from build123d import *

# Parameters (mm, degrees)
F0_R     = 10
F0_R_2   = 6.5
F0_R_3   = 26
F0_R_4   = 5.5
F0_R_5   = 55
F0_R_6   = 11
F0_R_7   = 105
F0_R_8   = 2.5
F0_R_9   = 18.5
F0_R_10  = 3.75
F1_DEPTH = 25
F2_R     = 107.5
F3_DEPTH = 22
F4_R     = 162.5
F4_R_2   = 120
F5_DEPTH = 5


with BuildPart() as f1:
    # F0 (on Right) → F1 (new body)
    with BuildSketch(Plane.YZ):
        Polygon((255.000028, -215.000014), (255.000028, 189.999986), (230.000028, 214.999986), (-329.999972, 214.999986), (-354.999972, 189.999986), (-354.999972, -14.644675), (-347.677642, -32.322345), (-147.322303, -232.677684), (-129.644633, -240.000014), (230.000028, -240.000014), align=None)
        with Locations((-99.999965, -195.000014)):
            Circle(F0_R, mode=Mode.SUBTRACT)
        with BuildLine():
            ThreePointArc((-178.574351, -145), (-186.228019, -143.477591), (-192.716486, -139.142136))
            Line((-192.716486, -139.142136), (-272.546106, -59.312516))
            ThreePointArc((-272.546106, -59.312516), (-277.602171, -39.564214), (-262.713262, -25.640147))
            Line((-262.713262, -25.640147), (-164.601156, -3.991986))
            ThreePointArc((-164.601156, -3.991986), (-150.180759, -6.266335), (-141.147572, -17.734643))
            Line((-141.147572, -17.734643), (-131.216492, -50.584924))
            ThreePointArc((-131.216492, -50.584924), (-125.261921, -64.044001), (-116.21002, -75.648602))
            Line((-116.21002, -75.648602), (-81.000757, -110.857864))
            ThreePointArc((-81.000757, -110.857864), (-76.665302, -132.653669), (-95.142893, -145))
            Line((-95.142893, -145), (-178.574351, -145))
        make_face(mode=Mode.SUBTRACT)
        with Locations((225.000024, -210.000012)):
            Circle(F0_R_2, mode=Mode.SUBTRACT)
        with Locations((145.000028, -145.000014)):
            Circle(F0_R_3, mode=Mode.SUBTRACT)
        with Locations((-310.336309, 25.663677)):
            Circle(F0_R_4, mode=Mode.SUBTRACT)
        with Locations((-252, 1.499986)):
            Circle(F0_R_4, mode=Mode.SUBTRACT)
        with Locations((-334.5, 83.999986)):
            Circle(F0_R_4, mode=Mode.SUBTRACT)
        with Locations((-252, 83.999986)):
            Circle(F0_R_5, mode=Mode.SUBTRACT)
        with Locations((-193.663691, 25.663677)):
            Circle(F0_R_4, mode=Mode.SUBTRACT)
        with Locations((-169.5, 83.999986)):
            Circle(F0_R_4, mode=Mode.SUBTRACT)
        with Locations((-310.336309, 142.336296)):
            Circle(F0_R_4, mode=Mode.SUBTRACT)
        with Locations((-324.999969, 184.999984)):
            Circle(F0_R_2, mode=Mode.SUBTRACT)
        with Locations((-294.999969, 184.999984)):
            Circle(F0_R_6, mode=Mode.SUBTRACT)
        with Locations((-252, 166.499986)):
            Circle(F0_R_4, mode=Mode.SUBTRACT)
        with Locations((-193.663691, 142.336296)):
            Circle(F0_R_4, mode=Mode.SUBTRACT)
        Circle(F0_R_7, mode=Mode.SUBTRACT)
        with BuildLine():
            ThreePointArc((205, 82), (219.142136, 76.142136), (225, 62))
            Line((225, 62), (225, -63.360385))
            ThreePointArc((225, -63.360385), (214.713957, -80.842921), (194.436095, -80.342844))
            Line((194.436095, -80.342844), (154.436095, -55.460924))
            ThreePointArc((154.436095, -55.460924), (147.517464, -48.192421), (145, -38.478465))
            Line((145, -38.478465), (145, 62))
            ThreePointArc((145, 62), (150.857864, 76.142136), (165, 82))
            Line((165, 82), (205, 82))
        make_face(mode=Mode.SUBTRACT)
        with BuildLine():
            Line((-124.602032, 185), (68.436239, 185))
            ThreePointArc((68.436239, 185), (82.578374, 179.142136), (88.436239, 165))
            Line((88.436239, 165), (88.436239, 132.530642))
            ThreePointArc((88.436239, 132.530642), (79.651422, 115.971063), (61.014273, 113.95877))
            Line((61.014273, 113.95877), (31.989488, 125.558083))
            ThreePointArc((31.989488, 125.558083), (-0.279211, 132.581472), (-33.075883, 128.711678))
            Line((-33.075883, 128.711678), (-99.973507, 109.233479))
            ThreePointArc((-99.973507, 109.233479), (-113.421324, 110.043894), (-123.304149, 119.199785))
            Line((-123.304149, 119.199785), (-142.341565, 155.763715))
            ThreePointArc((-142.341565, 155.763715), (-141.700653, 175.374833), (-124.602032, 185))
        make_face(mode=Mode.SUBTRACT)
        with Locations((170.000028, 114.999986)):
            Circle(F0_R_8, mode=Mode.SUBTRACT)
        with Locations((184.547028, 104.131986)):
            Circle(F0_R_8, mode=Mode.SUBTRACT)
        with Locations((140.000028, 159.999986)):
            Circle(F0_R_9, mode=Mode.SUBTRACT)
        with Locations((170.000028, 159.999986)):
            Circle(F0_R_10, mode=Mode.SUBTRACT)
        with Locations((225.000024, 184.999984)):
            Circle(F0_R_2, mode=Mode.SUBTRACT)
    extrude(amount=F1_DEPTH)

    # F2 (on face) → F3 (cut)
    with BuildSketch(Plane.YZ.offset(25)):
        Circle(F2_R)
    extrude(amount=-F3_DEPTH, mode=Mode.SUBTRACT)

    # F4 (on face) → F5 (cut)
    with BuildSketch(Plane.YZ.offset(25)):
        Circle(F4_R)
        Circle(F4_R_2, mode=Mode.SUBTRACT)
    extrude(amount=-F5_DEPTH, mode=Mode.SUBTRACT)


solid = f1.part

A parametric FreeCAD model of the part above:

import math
import FreeCAD as App
import Part
import Sketcher
Q = App.Units.Quantity

doc = App.newDocument("Part")
body = doc.addObject("PartDesign::Body", "Body")

sketch1 = doc.addObject("Sketcher::SketchObject", "Sketch")
body.addObject(sketch1)
sketch1.AttachmentSupport = (doc.YZ_Plane, [""])
sketch1.MapMode = "FlatFace"
sketch1.addGeometry(Part.LineSegment(App.Vector(255.000028, -215.000014, 0), App.Vector(255.000028, 189.999986, 0)), False)
sketch1.addGeometry(Part.LineSegment(App.Vector(255.000028, 189.999986, 0), App.Vector(230.000028, 214.999986, 0)), False)
sketch1.addGeometry(Part.LineSegment(App.Vector(230.000028, 214.999986, 0), App.Vector(-329.999972, 214.999986, 0)), False)
sketch1.addGeometry(Part.LineSegment(App.Vector(-329.999972, 214.999986, 0), App.Vector(-354.999972, 189.999986, 0)), False)
sketch1.addGeometry(Part.LineSegment(App.Vector(-354.999972, 189.999986, 0), App.Vector(-354.999972, -14.644675, 0)), False)
sketch1.addGeometry(Part.LineSegment(App.Vector(-354.999972, -14.644675, 0), App.Vector(-347.677642, -32.322345, 0)), False)
sketch1.addGeometry(Part.LineSegment(App.Vector(-347.677642, -32.322345, 0), App.Vector(-147.322303, -232.677684, 0)), False)
sketch1.addGeometry(Part.LineSegment(App.Vector(-147.322303, -232.677684, 0), App.Vector(-129.644633, -240.000014, 0)), False)
sketch1.addGeometry(Part.LineSegment(App.Vector(-129.644633, -240.000014, 0), App.Vector(230.000028, -240.000014, 0)), False)
sketch1.addGeometry(Part.LineSegment(App.Vector(230.000028, -240.000014, 0), App.Vector(255.000028, -215.000014, 0)), False)
sketch1.addGeometry(Part.Circle(App.Vector(-99.999965, -195.000014, 0), App.Vector(0, 0, 1), 10), False)
sketch1.addGeometry(Part.LineSegment(App.Vector(-95.142893, -145, 0), App.Vector(-178.574351, -145, 0)), False)
sketch1.addGeometry(Part.ArcOfCircle(Part.Circle(App.Vector(-178.574352, -125.000002, 0), App.Vector(0, 0, 1), 19.999998), math.radians(-135.000001), math.radians(-89.999998)), False)
sketch1.addGeometry(Part.LineSegment(App.Vector(-192.716486, -139.142136, 0), App.Vector(-272.546106, -59.312516, 0)), False)
sketch1.addGeometry(Part.ArcOfCircle(Part.Circle(App.Vector(-258.403971, -45.17038, 0), App.Vector(0, 0, 1), 20), math.radians(102.442784), math.radians(225.000001)), False)
sketch1.addGeometry(Part.LineSegment(App.Vector(-262.713262, -25.640147, 0), App.Vector(-164.601156, -3.991986, 0)), False)
sketch1.addGeometry(Part.ArcOfCircle(Part.Circle(App.Vector(-160.291865, -23.522218, 0), App.Vector(0, 0, 1), 19.999999), math.radians(16.820768), math.radians(102.442784)), False)
sketch1.addGeometry(Part.LineSegment(App.Vector(-141.147572, -17.734643, 0), App.Vector(-131.216492, -50.584924, 0)), False)
sketch1.addGeometry(Part.ArcOfCircle(Part.Circle(App.Vector(-73.783597, -33.222187, 0), App.Vector(0, 0, 1), 60.000017), math.radians(-163.179226), math.radians(-135.000005)), False)
sketch1.addGeometry(Part.LineSegment(App.Vector(-116.21002, -75.648602, 0), App.Vector(-81.000757, -110.857864, 0)), False)
sketch1.addGeometry(Part.ArcOfCircle(Part.Circle(App.Vector(-95.142893, -125, 0), App.Vector(0, 0, 1), 20), math.radians(-90.000001), math.radians(45.000001)), False)
sketch1.addGeometry(Part.Circle(App.Vector(225.000024, -210.000012, 0), App.Vector(0, 0, 1), 6.5), False)
sketch1.addGeometry(Part.Circle(App.Vector(145.000028, -145.000014, 0), App.Vector(0, 0, 1), 26), False)
sketch1.addGeometry(Part.Circle(App.Vector(-310.336309, 25.663677, 0), App.Vector(0, 0, 1), 5.5), False)
sketch1.addGeometry(Part.Circle(App.Vector(-252, 1.499986, 0), App.Vector(0, 0, 1), 5.5), False)
sketch1.addGeometry(Part.Circle(App.Vector(-334.5, 83.999986, 0), App.Vector(0, 0, 1), 5.5), False)
sketch1.addGeometry(Part.Circle(App.Vector(-252, 83.999986, 0), App.Vector(0, 0, 1), 55), False)
sketch1.addGeometry(Part.Circle(App.Vector(-193.663691, 25.663677, 0), App.Vector(0, 0, 1), 5.5), False)
sketch1.addGeometry(Part.Circle(App.Vector(-169.5, 83.999986, 0), App.Vector(0, 0, 1), 5.5), False)
sketch1.addGeometry(Part.Circle(App.Vector(-310.336309, 142.336296, 0), App.Vector(0, 0, 1), 5.5), False)
sketch1.addGeometry(Part.Circle(App.Vector(-324.999969, 184.999984, 0), App.Vector(0, 0, 1), 6.5), False)
sketch1.addGeometry(Part.Circle(App.Vector(-294.999969, 184.999984, 0), App.Vector(0, 0, 1), 11), False)
sketch1.addGeometry(Part.Circle(App.Vector(-252, 166.499986, 0), App.Vector(0, 0, 1), 5.5), False)
sketch1.addGeometry(Part.Circle(App.Vector(-193.663691, 142.336296, 0), App.Vector(0, 0, 1), 5.5), False)
sketch1.addGeometry(Part.Circle(App.Vector(0, 0, 0), App.Vector(0, 0, 1), 105), False)
sketch1.addGeometry(Part.LineSegment(App.Vector(165, 82, 0), App.Vector(205, 82, 0)), False)
sketch1.addGeometry(Part.ArcOfCircle(Part.Circle(App.Vector(205.000001, 62.000001, 0), App.Vector(0, 0, 1), 19.999999), math.radians(-0.000004), math.radians(90.000004)), False)
sketch1.addGeometry(Part.LineSegment(App.Vector(225, 62, 0), App.Vector(225, -63.360385, 0)), False)
sketch1.addGeometry(Part.ArcOfCircle(Part.Circle(App.Vector(205.000001, -63.360386, 0), App.Vector(0, 0, 1), 19.999999), math.radians(-121.883599), math.radians(0.000003)), False)
sketch1.addGeometry(Part.LineSegment(App.Vector(194.436095, -80.342844, 0), App.Vector(154.436095, -55.460924, 0)), False)
sketch1.addGeometry(Part.ArcOfCircle(Part.Circle(App.Vector(164.999999, -38.478466, 0), App.Vector(0, 0, 1), 19.999999), math.radians(179.999998), math.radians(238.116405)), False)
sketch1.addGeometry(Part.LineSegment(App.Vector(145, -38.478465, 0), App.Vector(145, 62, 0)), False)
sketch1.addGeometry(Part.ArcOfCircle(Part.Circle(App.Vector(164.999999, 62.000001, 0), App.Vector(0, 0, 1), 19.999999), math.radians(89.999996), math.radians(180.000004)), False)
sketch1.addGeometry(Part.ArcOfCircle(Part.Circle(App.Vector(-124.602032, 165, 0), App.Vector(0, 0, 1), 20), math.radians(90), math.radians(207.504241)), False)
sketch1.addGeometry(Part.LineSegment(App.Vector(-124.602032, 185, 0), App.Vector(68.436239, 185, 0)), False)
sketch1.addGeometry(Part.ArcOfCircle(Part.Circle(App.Vector(68.436239, 165, 0), App.Vector(0, 0, 1), 20), math.radians(0.000001), math.radians(89.999999)), False)
sketch1.addGeometry(Part.LineSegment(App.Vector(88.436239, 165, 0), App.Vector(88.436239, 132.530642, 0)), False)
sketch1.addGeometry(Part.ArcOfCircle(Part.Circle(App.Vector(68.436238, 132.530643, 0), App.Vector(0, 0, 1), 20.000001), math.radians(-111.783365), math.radians(-0.000002)), False)
sketch1.addGeometry(Part.LineSegment(App.Vector(61.014273, 113.95877, 0), App.Vector(31.989488, 125.558083, 0)), False)
sketch1.addGeometry(Part.ArcOfCircle(Part.Circle(App.Vector(-5.120338, 32.698731, 0), App.Vector(0, 0, 1), 99.999993), math.radians(68.216632), math.radians(106.233675)), False)
sketch1.addGeometry(Part.LineSegment(App.Vector(-33.075883, 128.711678, 0), App.Vector(-99.973507, 109.233479, 0)), False)
sketch1.addGeometry(Part.ArcOfCircle(Part.Circle(App.Vector(-105.564616, 128.43607, 0), App.Vector(0, 0, 1), 20), math.radians(-152.495761), math.radians(-73.766326)), False)
sketch1.addGeometry(Part.LineSegment(App.Vector(-123.304149, 119.199785, 0), App.Vector(-142.341565, 155.763715, 0)), False)
sketch1.addGeometry(Part.Circle(App.Vector(184.547028, 104.131986, 0), App.Vector(0, 0, 1), 2.5), False)
sketch1.addGeometry(Part.Circle(App.Vector(170.000028, 114.999986, 0), App.Vector(0, 0, 1), 2.5), False)
sketch1.addGeometry(Part.Circle(App.Vector(140.000028, 159.999986, 0), App.Vector(0, 0, 1), 18.5), False)
sketch1.addGeometry(Part.Circle(App.Vector(170.000028, 159.999986, 0), App.Vector(0, 0, 1), 3.75), False)
sketch1.addGeometry(Part.Circle(App.Vector(225.000024, 184.999984, 0), App.Vector(0, 0, 1), 6.5), False)
sketch1.addConstraint(Sketcher.Constraint("Coincident", 0, 2, 1, 1))
sketch1.addConstraint(Sketcher.Constraint("Coincident", 1, 2, 2, 1))
sketch1.addConstraint(Sketcher.Constraint("Coincident", 2, 2, 3, 1))
sketch1.addConstraint(Sketcher.Constraint("Coincident", 3, 2, 4, 1))
sketch1.addConstraint(Sketcher.Constraint("Coincident", 4, 2, 5, 1))
sketch1.addConstraint(Sketcher.Constraint("Coincident", 5, 2, 6, 1))
sketch1.addConstraint(Sketcher.Constraint("Coincident", 6, 2, 7, 1))
sketch1.addConstraint(Sketcher.Constraint("Coincident", 7, 2, 8, 1))
sketch1.addConstraint(Sketcher.Constraint("Coincident", 8, 2, 9, 1))
sketch1.addConstraint(Sketcher.Constraint("Coincident", 9, 2, 0, 1))
sketch1.addConstraint(Sketcher.Constraint("Tangent", 11, 2, 12, 2))
sketch1.addConstraint(Sketcher.Constraint("Tangent", 12, 1, 13, 1))
sketch1.addConstraint(Sketcher.Constraint("Tangent", 13, 2, 14, 2))
sketch1.addConstraint(Sketcher.Constraint("Tangent", 14, 1, 15, 1))
sketch1.addConstraint(Sketcher.Constraint("Tangent", 15, 2, 16, 2))
sketch1.addConstraint(Sketcher.Constraint("Tangent", 16, 1, 17, 1))
sketch1.addConstraint(Sketcher.Constraint("Tangent", 17, 2, 18, 1))
sketch1.addConstraint(Sketcher.Constraint("Tangent", 18, 2, 19, 1))
sketch1.addConstraint(Sketcher.Constraint("Tangent", 19, 2, 20, 2))
sketch1.addConstraint(Sketcher.Constraint("Tangent", 20, 1, 11, 1))
sketch1.addConstraint(Sketcher.Constraint("Tangent", 35, 2, 36, 2))
sketch1.addConstraint(Sketcher.Constraint("Tangent", 36, 1, 37, 1))
sketch1.addConstraint(Sketcher.Constraint("Tangent", 37, 2, 38, 2))
sketch1.addConstraint(Sketcher.Constraint("Tangent", 38, 1, 39, 1))
sketch1.addConstraint(Sketcher.Constraint("Tangent", 39, 2, 40, 2))
sketch1.addConstraint(Sketcher.Constraint("Tangent", 40, 1, 41, 1))
sketch1.addConstraint(Sketcher.Constraint("Tangent", 41, 2, 42, 2))
sketch1.addConstraint(Sketcher.Constraint("Tangent", 42, 1, 35, 1))
sketch1.addConstraint(Sketcher.Constraint("Tangent", 43, 1, 44, 1))
sketch1.addConstraint(Sketcher.Constraint("Tangent", 44, 2, 45, 2))
sketch1.addConstraint(Sketcher.Constraint("Tangent", 45, 1, 46, 1))
sketch1.addConstraint(Sketcher.Constraint("Tangent", 46, 2, 47, 2))
sketch1.addConstraint(Sketcher.Constraint("Tangent", 47, 1, 48, 1))
sketch1.addConstraint(Sketcher.Constraint("Tangent", 48, 2, 49, 1))
sketch1.addConstraint(Sketcher.Constraint("Tangent", 49, 2, 50, 1))
sketch1.addConstraint(Sketcher.Constraint("Tangent", 50, 2, 51, 2))
sketch1.addConstraint(Sketcher.Constraint("Tangent", 51, 1, 52, 1))
sketch1.addConstraint(Sketcher.Constraint("Tangent", 52, 2, 43, 2))
sketch1.addConstraint(Sketcher.Constraint("Vertical", 0))
sketch1.addConstraint(Sketcher.Constraint("Horizontal", 2))
sketch1.addConstraint(Sketcher.Constraint("Vertical", 4))
sketch1.addConstraint(Sketcher.Constraint("Horizontal", 8))
sketch1.addConstraint(Sketcher.Constraint("Horizontal", 11))
sketch1.addConstraint(Sketcher.Constraint("Horizontal", 35))
sketch1.addConstraint(Sketcher.Constraint("Vertical", 37))
sketch1.addConstraint(Sketcher.Constraint("Vertical", 41))
sketch1.addConstraint(Sketcher.Constraint("Horizontal", 44))
sketch1.addConstraint(Sketcher.Constraint("Vertical", 46))
sketch1.addConstraint(Sketcher.Constraint("Coincident", 34, 3, -1, 1))
sketch1.addConstraint(Sketcher.Constraint("Equal", 14, 16))
sketch1.addConstraint(Sketcher.Constraint("Equal", 16, 20))
sketch1.addConstraint(Sketcher.Constraint("Equal", 23, 24))
sketch1.addConstraint(Sketcher.Constraint("Equal", 24, 25))
sketch1.addConstraint(Sketcher.Constraint("Equal", 25, 27))
sketch1.addConstraint(Sketcher.Constraint("Equal", 27, 28))
sketch1.addConstraint(Sketcher.Constraint("Equal", 28, 29))
sketch1.addConstraint(Sketcher.Constraint("Equal", 21, 30))
sketch1.addConstraint(Sketcher.Constraint("Equal", 29, 32))
sketch1.addConstraint(Sketcher.Constraint("Equal", 32, 33))
sketch1.addConstraint(Sketcher.Constraint("Equal", 20, 36))
sketch1.addConstraint(Sketcher.Constraint("Equal", 36, 38))
sketch1.addConstraint(Sketcher.Constraint("Equal", 38, 40))
sketch1.addConstraint(Sketcher.Constraint("Equal", 40, 42))
sketch1.addConstraint(Sketcher.Constraint("Equal", 42, 43))
sketch1.addConstraint(Sketcher.Constraint("Equal", 43, 45))
sketch1.addConstraint(Sketcher.Constraint("Equal", 45, 47))
sketch1.addConstraint(Sketcher.Constraint("Equal", 47, 51))
sketch1.addConstraint(Sketcher.Constraint("Equal", 53, 54))
sketch1.addConstraint(Sketcher.Constraint("Equal", 30, 57))
sketch1.addConstraint(Sketcher.Constraint("Perpendicular", 1, 3))
sketch1.addConstraint(Sketcher.Constraint("Perpendicular", 3, 6))
sketch1.addConstraint(Sketcher.Constraint("Perpendicular", 6, 9))
sketch1.addConstraint(Sketcher.Constraint("Perpendicular", 9, 13))
sketch1.addConstraint(Sketcher.Constraint("Parallel", 13, 19))
sketch1.addConstraint(Sketcher.Constraint("Horizontal", 25, 3, 26, 3))
sketch1.addConstraint(Sketcher.Constraint("Horizontal", 23, 3, 27, 3))
sketch1.addConstraint(Sketcher.Constraint("Horizontal", 26, 3, 28, 3))
sketch1.addConstraint(Sketcher.Constraint("Horizontal", 30, 3, 31, 3))
sketch1.addConstraint(Sketcher.Constraint("Horizontal", 29, 3, 33, 3))
sketch1.addConstraint(Sketcher.Constraint("Horizontal", 55, 3, 56, 3))
sketch1.addConstraint(Sketcher.Constraint("Horizontal", 31, 3, 57, 3))
sketch1.addConstraint(Sketcher.Constraint("Horizontal", 0, 2, 3, 2))
sketch1.addConstraint(Sketcher.Constraint("Vertical", 24, 3, 26, 3))
sketch1.addConstraint(Sketcher.Constraint("Vertical", 23, 3, 29, 3))
sketch1.addConstraint(Sketcher.Constraint("Vertical", 26, 3, 32, 3))
sketch1.addConstraint(Sketcher.Constraint("Vertical", 27, 3, 33, 3))
sketch1.addConstraint(Sketcher.Constraint("Vertical", 54, 3, 56, 3))
sketch1.addConstraint(Sketcher.Constraint("Vertical", 21, 3, 57, 3))
sketch1.addConstraint(Sketcher.Constraint("Vertical", 1, 2, 8, 2))
sketch1.addConstraint(Sketcher.Constraint("Equal", 1, 3))
sketch1.addConstraint(Sketcher.Constraint("Equal", 5, 7))
sketch1.addConstraint(Sketcher.Constraint("Diameter", 10, 20.0))
sketch1.addConstraint(Sketcher.Constraint("Diameter", 21, 13.0))
sketch1.addConstraint(Sketcher.Constraint("Diameter", 22, 52.0))
sketch1.addConstraint(Sketcher.Constraint("Diameter", 23, 11.0))
sketch1.addConstraint(Sketcher.Constraint("Diameter", 26, 110.0))
sketch1.addConstraint(Sketcher.Constraint("Diameter", 31, 22.0))
sketch1.addConstraint(Sketcher.Constraint("Diameter", 34, 210.0))
sketch1.addConstraint(Sketcher.Constraint("Diameter", 53, 5.0))
sketch1.addConstraint(Sketcher.Constraint("Diameter", 55, 37.0))
sketch1.addConstraint(Sketcher.Constraint("Radius", 14, 20.0))
sketch1.addConstraint(Sketcher.Constraint("Diameter", 56, 7.5))
sketch1.addConstraint(Sketcher.Constraint("DistanceX", 2, 2, 2, 1, 560.0))
sketch1.addConstraint(Sketcher.Constraint("DistanceX", 35, 1, 35, 2, 40.0))
sketch1.addConstraint(Sketcher.Constraint("DistanceY", 0, 1, 0, 2, 405.0))
sketch1.addConstraint(Sketcher.Constraint("DistanceY", 20, 3, -1, 1, 125.0))
sketch1.addConstraint(Sketcher.Constraint("DistanceX", 24, 3, -1, 1, 252.0))
sketch1.addConstraint(Sketcher.Constraint("DistanceX", -1, 1, 36, 3, 205.000001))
sketch1.addConstraint(Sketcher.Constraint("DistanceY", -1, 1, 36, 3, 62.000001))
sketch1.addConstraint(Sketcher.Constraint("DistanceY", -1, 1, 43, 3, 165.0))
sketch1.addConstraint(Sketcher.Constraint("Angle", 5, Q("-67.500002 deg")))
sketch1.addConstraint(Sketcher.Constraint("Angle", 7, Q("-22.499998 deg")))
sketch1.addConstraint(Sketcher.Constraint("DistanceX", 25, 3, -1, 1, 334.5))
sketch1.addConstraint(Sketcher.Constraint("DistanceX", 28, 3, -1, 1, 169.5))
sketch1.addConstraint(Sketcher.Constraint("Radius", 12, 19.999998))
sketch1.addConstraint(Sketcher.Constraint("Radius", 18, 60.000017))
sketch1.addConstraint(Sketcher.Constraint("Radius", 49, 99.999993))
sketch1.addConstraint(Sketcher.Constraint("DistanceX", 8, 1, 8, 2, 359.644661))
sketch1.addConstraint(Sketcher.Constraint("DistanceX", 11, 2, 11, 1, 83.431458))
sketch1.addConstraint(Sketcher.Constraint("DistanceX", 44, 1, 44, 2, 193.038271))
sketch1.addConstraint(Sketcher.Constraint("Distance", 1, 35.355339))
sketch1.addConstraint(Sketcher.Constraint("Distance", 5, 19.134172))
sketch1.addConstraint(Sketcher.Constraint("Distance", 13, 112.896131))
sketch1.addConstraint(Sketcher.Constraint("Distance", 39, 47.10743))
sketch1.addConstraint(Sketcher.Constraint("DistanceY", 37, 2, 37, 1, 125.360385))
sketch1.addConstraint(Sketcher.Constraint("DistanceY", 46, 2, 46, 1, 32.469358))
sketch1.addConstraint(Sketcher.Constraint("DistanceX", 12, 3, -1, 1, 178.574352))
sketch1.addConstraint(Sketcher.Constraint("DistanceY", 16, 3, -1, 1, 23.522218))
sketch1.addConstraint(Sketcher.Constraint("DistanceY", 21, 3, -1, 1, 210.000012))
sketch1.addConstraint(Sketcher.Constraint("DistanceX", 23, 3, -1, 1, 310.336309))
sketch1.addConstraint(Sketcher.Constraint("DistanceX", 27, 3, -1, 1, 193.663691))
sketch1.addConstraint(Sketcher.Constraint("DistanceX", 30, 3, -1, 1, 324.999969))
sketch1.addConstraint(Sketcher.Constraint("DistanceX", 31, 3, -1, 1, 294.999969))
sketch1.addConstraint(Sketcher.Constraint("DistanceX", -1, 1, 45, 3, 68.436239))
sketch1.addConstraint(Sketcher.Constraint("DistanceX", 49, 3, -1, 1, 5.120338))
sketch1.addConstraint(Sketcher.Constraint("DistanceY", -1, 1, 49, 3, 32.698731))
sketch1.addConstraint(Sketcher.Constraint("DistanceY", -1, 1, 51, 3, 128.43607))
sketch1.addConstraint(Sketcher.Constraint("DistanceX", -1, 1, 53, 3, 184.547028))
sketch1.addConstraint(Sketcher.Constraint("DistanceX", 2, 2, -1, 1, 329.999972))
sketch1.addConstraint(Sketcher.Constraint("DistanceX", 17, 2, -1, 1, 131.216492))
sketch1.addConstraint(Sketcher.Constraint("DistanceX", 18, 2, -1, 1, 116.21002))
sketch1.addConstraint(Sketcher.Constraint("DistanceY", -1, 1, 50, 2, 109.233479))
sketch1.addConstraint(Sketcher.Constraint("DistanceX", 10, 3, -1, 1, 99.999965))
sketch1.addConstraint(Sketcher.Constraint("DistanceY", 10, 3, -1, 1, 195.000014))
sketch1.addConstraint(Sketcher.Constraint("DistanceX", -1, 1, 21, 3, 225.000024))
sketch1.addConstraint(Sketcher.Constraint("DistanceX", -1, 1, 22, 3, 145.000028))
sketch1.addConstraint(Sketcher.Constraint("DistanceY", 22, 3, -1, 1, 145.000014))
sketch1.addConstraint(Sketcher.Constraint("DistanceY", -1, 1, 23, 3, 25.663677))
sketch1.addConstraint(Sketcher.Constraint("DistanceY", -1, 1, 24, 3, 1.499986))
sketch1.addConstraint(Sketcher.Constraint("DistanceY", -1, 1, 25, 3, 83.999986))
sketch1.addConstraint(Sketcher.Constraint("DistanceY", -1, 1, 29, 3, 142.336296))
sketch1.addConstraint(Sketcher.Constraint("DistanceY", -1, 1, 30, 3, 184.999984))
sketch1.addConstraint(Sketcher.Constraint("DistanceY", -1, 1, 32, 3, 166.499986))
sketch1.addConstraint(Sketcher.Constraint("DistanceY", -1, 1, 53, 3, 104.131986))
sketch1.addConstraint(Sketcher.Constraint("DistanceX", -1, 1, 54, 3, 170.000028))
sketch1.addConstraint(Sketcher.Constraint("DistanceY", -1, 1, 54, 3, 114.999986))
sketch1.addConstraint(Sketcher.Constraint("DistanceX", -1, 1, 55, 3, 140.000028))
sketch1.addConstraint(Sketcher.Constraint("DistanceY", -1, 1, 55, 3, 159.999986))
sketch1.addConstraint(Sketcher.Constraint("DistanceY", -1, 1, 0, 2, 189.999986))
pad1 = doc.addObject("PartDesign::Pad", "Pad")
body.addObject(pad1)
pad1.Profile = sketch1
pad1.Length = 25

sketch2 = doc.addObject("Sketcher::SketchObject", "Sketch001")
body.addObject(sketch2)
sketch2.AttachmentSupport = (doc.YZ_Plane, [""])
sketch2.MapMode = "FlatFace"
sketch2.AttachmentOffset = App.Placement(App.Vector(0, 0, 25), App.Rotation())
sketch2.addGeometry(Part.Circle(App.Vector(0, 0, 0), App.Vector(0, 0, 1), 107.5), False)
sketch2.addConstraint(Sketcher.Constraint("Coincident", 0, 3, -1, 1))
sketch2.addConstraint(Sketcher.Constraint("Diameter", 0, 215.0))
pocket1 = doc.addObject("PartDesign::Pocket", "Pocket")
body.addObject(pocket1)
pocket1.Profile = sketch2
pocket1.Length = 22

sketch3 = doc.addObject("Sketcher::SketchObject", "Sketch002")
body.addObject(sketch3)
sketch3.AttachmentSupport = (doc.YZ_Plane, [""])
sketch3.MapMode = "FlatFace"
sketch3.AttachmentOffset = App.Placement(App.Vector(0, 0, 25), App.Rotation())
sketch3.addGeometry(Part.Circle(App.Vector(0, 0, 0), App.Vector(0, 0, 1), 162.5), False)
sketch3.addGeometry(Part.Circle(App.Vector(0, 0, 0), App.Vector(0, 0, 1), 120), False)
sketch3.addConstraint(Sketcher.Constraint("Coincident", 0, 3, -1, 1))
sketch3.addConstraint(Sketcher.Constraint("Coincident", 1, 3, -1, 1))
sketch3.addConstraint(Sketcher.Constraint("Diameter", 0, 325.0))
sketch3.addConstraint(Sketcher.Constraint("Diameter", 1, 240.0))
pocket2 = doc.addObject("PartDesign::Pocket", "Pocket001")
body.addObject(pocket2)
pocket2.Profile = sketch3
pocket2.Length = 5

doc.recompute()
